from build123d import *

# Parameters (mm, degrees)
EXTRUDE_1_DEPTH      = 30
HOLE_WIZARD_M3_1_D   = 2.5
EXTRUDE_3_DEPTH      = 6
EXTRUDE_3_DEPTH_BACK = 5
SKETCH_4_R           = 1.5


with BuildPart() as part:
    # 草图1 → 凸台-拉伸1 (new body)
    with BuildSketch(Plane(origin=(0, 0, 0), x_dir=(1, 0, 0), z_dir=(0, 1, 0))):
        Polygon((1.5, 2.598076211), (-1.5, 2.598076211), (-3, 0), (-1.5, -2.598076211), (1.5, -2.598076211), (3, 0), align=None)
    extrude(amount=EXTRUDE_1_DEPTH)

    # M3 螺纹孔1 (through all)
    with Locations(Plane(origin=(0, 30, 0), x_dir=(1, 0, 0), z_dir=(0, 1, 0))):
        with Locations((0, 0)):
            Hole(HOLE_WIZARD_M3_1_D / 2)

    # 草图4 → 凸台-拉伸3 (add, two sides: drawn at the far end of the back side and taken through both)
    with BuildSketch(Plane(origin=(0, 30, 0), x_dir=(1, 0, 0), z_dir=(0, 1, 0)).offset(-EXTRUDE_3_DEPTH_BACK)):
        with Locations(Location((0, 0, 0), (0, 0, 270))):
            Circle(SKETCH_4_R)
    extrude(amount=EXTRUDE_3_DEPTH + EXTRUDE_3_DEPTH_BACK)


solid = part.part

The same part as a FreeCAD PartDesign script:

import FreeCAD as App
import Part
import Sketcher

V = App.Vector
Q = App.Units.Quantity

doc = App.newDocument("Part")
params = doc.addObject("Spreadsheet::Sheet", "Params")
for row, (alias, value) in enumerate([
    ("sketch1_width", "3 mm"),
    ("sketch1_length", "3 mm"),
    ("pad1_length", "30 mm"),
    ("sketch2_diameter", "2.5 mm"),
    ("hole_diameter", "2.5 mm"),
    ("sketch3_diameter", "3 mm"),
    ("pad2_length", "6 mm"),
    ("pad2_length2", "5 mm"),
], start=1):
    params.set(f"A{row}", alias)
    params.set(f"B{row}", "=" + value)
    params.setAlias(f"B{row}", alias)

body = doc.addObject("PartDesign::Body", "Body")

sketch1 = doc.addObject("Sketcher::SketchObject", "Sketch")
body.addObject(sketch1)
sketch1.AttachmentSupport = (doc.XZ_Plane, [""])
sketch1.MapMode = "FlatFace"
sketch1.addGeometry([
    Part.LineSegment(V(1.5, -2.6, 0), V(-1.5, -2.6, 0)),
    Part.LineSegment(V(-1.5, -2.6, 0), V(-3, 0, 0)),
    Part.LineSegment(V(-3, 0, 0), V(-1.5, 2.6, 0)),
    Part.LineSegment(V(-1.5, 2.6, 0), V(1.5, 2.6, 0)),
    Part.LineSegment(V(1.5, 2.6, 0), V(3, 0, 0)),
    Part.LineSegment(V(3, 0, 0), V(1.5, -2.6, 0)),
], False)
sketch1.addConstraint([
    Sketcher.Constraint("Coincident", 0, 2, 1, 1),
    Sketcher.Constraint("Coincident", 1, 2, 2, 1),
    Sketcher.Constraint("Coincident", 2, 2, 3, 1),
    Sketcher.Constraint("Coincident", 3, 2, 4, 1),
    Sketcher.Constraint("Coincident", 4, 2, 5, 1),
    Sketcher.Constraint("Coincident", 5, 2, 0, 1),
    Sketcher.Constraint("Horizontal", 0),
    Sketcher.Constraint("Horizontal", 3),
    Sketcher.Constraint("Symmetric", 0, 2, 3, 2, -1, 1),
    Sketcher.Constraint("Symmetric", 1, 2, 4, 2, -1, 1),
    Sketcher.Constraint("PointOnObject", 1, 2, -1),
    Sketcher.Constraint("Parallel", 2, 5),
    Sketcher.Constraint("Vertical", 0, 2, 2, 2),
    Sketcher.Constraint("DistanceX", 0, 2, 0, 1, 3.0),
    Sketcher.Constraint("Angle", 1, Q("120 deg")),
    Sketcher.Constraint("Distance", 1, 3.0),
])
sketch1.setExpression("Constraints[13]", "Params.sketch1_width")
sketch1.setExpression("Constraints[15]", "Params.sketch1_length")
pad1 = doc.addObject("PartDesign::Pad", "Pad")
body.addObject(pad1)
pad1.Profile = sketch1
pad1.setExpression("Length", "Params.pad1_length")
pad1.Reversed = True

sketch2 = doc.addObject("Sketcher::SketchObject", "Sketch001")
body.addObject(sketch2)
sketch2.AttachmentSupport = (doc.XZ_Plane, [""])
sketch2.MapMode = "FlatFace"
sketch2.AttachmentOffset = App.Placement(V(0, 0, -30), App.Rotation())
sketch2.addGeometry(Part.Circle(V(0, 0, 0), V(0, 0, 1), 1.2), False)
sketch2.addConstraint([
    Sketcher.Constraint("Coincident", 0, 3, -1, 1),
    Sketcher.Constraint("Diameter", 0, 2.5),
])
sketch2.setExpression("Constraints[1]", "Params.sketch2_diameter")
doc.recompute()
hole = doc.addObject("PartDesign::Hole", "Hole")
body.addObject(hole)
hole.Profile = sketch2
hole.ThreadType = "None"
hole.setExpression("Diameter", "Params.hole_diameter")
hole.DepthType = "ThroughAll"
hole.Reversed = True

sketch3 = doc.addObject("Sketcher::SketchObject", "Sketch002")
body.addObject(sketch3)
sketch3.AttachmentSupport = (doc.XZ_Plane, [""])
sketch3.MapMode = "FlatFace"
sketch3.AttachmentOffset = App.Placement(V(0, 0, -30), App.Rotation())
sketch3.addGeometry(Part.Circle(V(0, 0, 0), V(0, 0, 1), 1.5), False)
sketch3.addConstraint([
    Sketcher.Constraint("Coincident", 0, 3, -1, 1),
    Sketcher.Constraint("Diameter", 0, 3.0),
])
sketch3.setExpression("Constraints[1]", "Params.sketch3_diameter")
pad2 = doc.addObject("PartDesign::Pad", "Pad001")
body.addObject(pad2)
pad2.Profile = sketch3
pad2.Type = "TwoLengths"
pad2.setExpression("Length", "Params.pad2_length")
pad2.setExpression("Length2", "Params.pad2_length2")
pad2.Reversed = True

doc.recompute()
